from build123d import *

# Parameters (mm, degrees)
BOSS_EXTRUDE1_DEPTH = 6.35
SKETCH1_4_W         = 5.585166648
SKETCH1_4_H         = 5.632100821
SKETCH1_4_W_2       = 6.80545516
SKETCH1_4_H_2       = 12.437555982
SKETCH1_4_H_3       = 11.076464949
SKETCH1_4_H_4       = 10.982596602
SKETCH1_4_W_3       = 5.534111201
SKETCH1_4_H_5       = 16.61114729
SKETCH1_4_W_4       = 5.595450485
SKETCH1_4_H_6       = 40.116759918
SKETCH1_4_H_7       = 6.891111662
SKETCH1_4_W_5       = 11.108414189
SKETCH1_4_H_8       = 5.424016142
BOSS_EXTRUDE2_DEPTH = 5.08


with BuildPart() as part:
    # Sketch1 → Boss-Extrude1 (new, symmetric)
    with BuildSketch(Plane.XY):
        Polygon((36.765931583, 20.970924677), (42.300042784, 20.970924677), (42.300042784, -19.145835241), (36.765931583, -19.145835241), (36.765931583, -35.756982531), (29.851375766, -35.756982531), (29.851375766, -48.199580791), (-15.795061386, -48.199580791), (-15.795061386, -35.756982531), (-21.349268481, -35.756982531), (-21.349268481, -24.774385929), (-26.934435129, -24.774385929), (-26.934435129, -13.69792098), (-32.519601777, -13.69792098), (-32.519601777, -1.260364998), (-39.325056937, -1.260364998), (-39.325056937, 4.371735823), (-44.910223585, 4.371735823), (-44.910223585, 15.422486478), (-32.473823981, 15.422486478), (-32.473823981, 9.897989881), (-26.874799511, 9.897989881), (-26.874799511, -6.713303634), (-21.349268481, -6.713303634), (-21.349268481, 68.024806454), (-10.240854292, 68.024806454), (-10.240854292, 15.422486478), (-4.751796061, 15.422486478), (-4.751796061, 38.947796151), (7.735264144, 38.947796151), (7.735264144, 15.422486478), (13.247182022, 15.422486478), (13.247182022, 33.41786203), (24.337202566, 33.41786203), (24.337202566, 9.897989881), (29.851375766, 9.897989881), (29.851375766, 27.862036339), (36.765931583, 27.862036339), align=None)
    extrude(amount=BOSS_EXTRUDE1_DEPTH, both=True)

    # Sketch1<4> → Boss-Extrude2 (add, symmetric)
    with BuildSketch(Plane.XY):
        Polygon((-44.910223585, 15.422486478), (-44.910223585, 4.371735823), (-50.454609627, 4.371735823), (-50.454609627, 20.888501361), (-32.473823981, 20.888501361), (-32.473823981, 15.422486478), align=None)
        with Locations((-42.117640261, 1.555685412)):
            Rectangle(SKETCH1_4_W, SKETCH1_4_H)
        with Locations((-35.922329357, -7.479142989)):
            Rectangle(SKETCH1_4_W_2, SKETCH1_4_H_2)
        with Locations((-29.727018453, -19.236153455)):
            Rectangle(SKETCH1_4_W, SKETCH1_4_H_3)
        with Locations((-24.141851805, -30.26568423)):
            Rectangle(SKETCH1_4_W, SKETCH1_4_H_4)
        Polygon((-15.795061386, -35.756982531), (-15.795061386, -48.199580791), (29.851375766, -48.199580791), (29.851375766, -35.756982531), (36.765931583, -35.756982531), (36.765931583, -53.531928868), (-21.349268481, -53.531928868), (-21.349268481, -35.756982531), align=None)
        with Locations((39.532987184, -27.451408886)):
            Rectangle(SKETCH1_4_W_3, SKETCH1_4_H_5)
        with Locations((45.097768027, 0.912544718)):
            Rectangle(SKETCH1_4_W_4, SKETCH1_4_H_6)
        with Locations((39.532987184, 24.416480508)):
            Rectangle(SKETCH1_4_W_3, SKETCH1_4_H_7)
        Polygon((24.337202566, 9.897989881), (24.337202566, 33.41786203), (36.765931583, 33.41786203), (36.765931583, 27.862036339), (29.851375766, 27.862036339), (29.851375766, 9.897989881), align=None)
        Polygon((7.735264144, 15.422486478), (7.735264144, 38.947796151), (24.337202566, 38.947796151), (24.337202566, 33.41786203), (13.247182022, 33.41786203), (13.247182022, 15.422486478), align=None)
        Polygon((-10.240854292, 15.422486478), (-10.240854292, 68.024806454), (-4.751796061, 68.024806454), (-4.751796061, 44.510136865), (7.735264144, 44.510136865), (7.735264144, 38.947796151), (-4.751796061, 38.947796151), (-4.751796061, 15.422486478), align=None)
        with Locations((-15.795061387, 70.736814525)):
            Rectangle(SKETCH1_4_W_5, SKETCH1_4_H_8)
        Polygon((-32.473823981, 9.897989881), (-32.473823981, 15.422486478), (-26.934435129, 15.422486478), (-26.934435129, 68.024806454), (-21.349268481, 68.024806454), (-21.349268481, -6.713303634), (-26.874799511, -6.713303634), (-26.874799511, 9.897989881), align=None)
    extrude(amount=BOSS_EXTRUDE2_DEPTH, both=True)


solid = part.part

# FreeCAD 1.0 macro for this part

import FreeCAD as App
import Part
import Sketcher
from FreeCAD import Vector
Q = App.Units.Quantity


def add_polygon(sketch, points):
    """Adds a closed chain of lines whose ends are joined by coincident constraints."""
    first, n = sketch.GeometryCount, len(points)
    for a, b in zip(points, points[1:] + points[:1]):
        sketch.addGeometry(Part.LineSegment(App.Vector(*a, 0), App.Vector(*b, 0)), False)
    for i in range(n):
        sketch.addConstraint(Sketcher.Constraint("Coincident", first + i, 2, first + (i + 1) % n, 1))

doc = App.newDocument("Part")
params = doc.addObject("Spreadsheet::Sheet", "Params")
for row, (alias, value) in enumerate([
    ("pad1_length", "0.5 in"),
    ("sketch2_width", "2.288 in"),
    ("pad2_length", "0.4 in"),
], start=1):
    params.set(f"A{row}", alias)
    params.set(f"B{row}", "=" + value)
    params.setAlias(f"B{row}", alias)

body = doc.addObject("PartDesign::Body", "Body")

# Sketch on XY plane
sketch1 = body.newObject("Sketcher::SketchObject", "Sketch")
sketch1.AttachmentSupport = (doc.getObject("XY_Plane"), [""])
sketch1.MapMode = "FlatFace"
add_polygon(sketch1, [(42, 21), (37, 21), (37, 28), (30, 28), (30, 10), (24, 10), (24, 33), (13, 33), (13, 15), (8, 15), (8, 39), (-5, 39), (-5, 15), (-10, 15), (-10, 68), (-21, 68), (-21, -7), (-27, -7), (-27, 10), (-32, 10), (-32, 15), (-45, 15), (-45, 4), (-39, 4), (-39, -1), (-33, -1), (-33, -14), (-27, -14), (-27, -25), (-21, -25), (-21, -36), (-16, -36), (-16, -48), (30, -48), (30, -36), (37, -36), (37, -19), (42, -19)])  # lines 0-37
sketch1.addConstraint(Sketcher.Constraint("Horizontal", 0))
sketch1.addConstraint(Sketcher.Constraint("Vertical", 1))
sketch1.addConstraint(Sketcher.Constraint("Horizontal", 2))
sketch1.addConstraint(Sketcher.Constraint("Vertical", 3))
sketch1.addConstraint(Sketcher.Constraint("Horizontal", 4))
sketch1.addConstraint(Sketcher.Constraint("Vertical", 5))
sketch1.addConstraint(Sketcher.Constraint("Horizontal", 6))
sketch1.addConstraint(Sketcher.Constraint("Vertical", 7))
sketch1.addConstraint(Sketcher.Constraint("Horizontal", 8))
sketch1.addConstraint(Sketcher.Constraint("Vertical", 9))
sketch1.addConstraint(Sketcher.Constraint("Horizontal", 10))
sketch1.addConstraint(Sketcher.Constraint("Vertical", 11))
sketch1.addConstraint(Sketcher.Constraint("Horizontal", 12))
sketch1.addConstraint(Sketcher.Constraint("Vertical", 13))
sketch1.addConstraint(Sketcher.Constraint("Horizontal", 14))
sketch1.addConstraint(Sketcher.Constraint("Vertical", 15))
sketch1.addConstraint(Sketcher.Constraint("Horizontal", 16))
sketch1.addConstraint(Sketcher.Constraint("Vertical", 17))
sketch1.addConstraint(Sketcher.Constraint("Horizontal", 18))
sketch1.addConstraint(Sketcher.Constraint("Vertical", 19))
sketch1.addConstraint(Sketcher.Constraint("Horizontal", 20))
sketch1.addConstraint(Sketcher.Constraint("Vertical", 21))
sketch1.addConstraint(Sketcher.Constraint("Horizontal", 22))
sketch1.addConstraint(Sketcher.Constraint("Vertical", 23))
sketch1.addConstraint(Sketcher.Constraint("Horizontal", 24))
sketch1.addConstraint(Sketcher.Constraint("Vertical", 25))
sketch1.addConstraint(Sketcher.Constraint("Horizontal", 26))
sketch1.addConstraint(Sketcher.Constraint("Vertical", 27))
sketch1.addConstraint(Sketcher.Constraint("Horizontal", 28))
sketch1.addConstraint(Sketcher.Constraint("Vertical", 29))
sketch1.addConstraint(Sketcher.Constraint("Horizontal", 30))
sketch1.addConstraint(Sketcher.Constraint("Vertical", 31))
sketch1.addConstraint(Sketcher.Constraint("Horizontal", 32))
sketch1.addConstraint(Sketcher.Constraint("Vertical", 33))
sketch1.addConstraint(Sketcher.Constraint("Horizontal", 34))
sketch1.addConstraint(Sketcher.Constraint("Vertical", 35))
sketch1.addConstraint(Sketcher.Constraint("Horizontal", 36))
sketch1.addConstraint(Sketcher.Constraint("Vertical", 37))
sketch1.addConstraint(Sketcher.Constraint("Horizontal", 8, 2, 11, 2))
sketch1.addConstraint(Sketcher.Constraint("Horizontal", 4, 2, 17, 2))
sketch1.addConstraint(Sketcher.Constraint("Horizontal", 12, 2, 19, 2))
sketch1.addConstraint(Sketcher.Constraint("Horizontal", 30, 2, 33, 2))
sketch1.addConstraint(Sketcher.Constraint("Vertical", 15, 2, 28, 2))
sketch1.addConstraint(Sketcher.Constraint("Vertical", 3, 2, 32, 2))
sketch1.addConstraint(Sketcher.Constraint("Vertical", 1, 2, 34, 2))
sketch1.addConstraint(Sketcher.Constraint("Equal", 22, 26))
sketch1.addConstraint(Sketcher.Constraint("Equal", 26, 28))
sketch1.addConstraint(Sketcher.Constraint("DistanceY", 19, 1, 19, 2, Q("0.2174999 in")))
sketch1.addConstraint(Sketcher.Constraint("DistanceY", 37, 1, 37, 2, Q("1.5794 in")))
sketch1.addConstraint(Sketcher.Constraint("DistanceX", 20, 2, 20, 1, 12.4364))
sketch1.addConstraint(Sketcher.Constraint("DistanceY", 23, 2, 23, 1, 5.632101))
sketch1.addConstraint(Sketcher.Constraint("DistanceY", 31, 2, 31, 1, 12.442598))
sketch1.addConstraint(Sketcher.Constraint("DistanceX", 0, 2, 0, 1, 5.534111))
sketch1.addConstraint(Sketcher.Constraint("DistanceX", 6, 2, 6, 1, 11.090021))
sketch1.addConstraint(Sketcher.Constraint("DistanceX", 10, 2, 10, 1, 12.48706))
sketch1.addConstraint(Sketcher.Constraint("DistanceX", 12, 2, 12, 1, 5.489058))
sketch1.addConstraint(Sketcher.Constraint("DistanceX", 16, 2, 16, 1, 5.525531))
sketch1.addConstraint(Sketcher.Constraint("DistanceY", 1, 1, 1, 2, 6.891112))
sketch1.addConstraint(Sketcher.Constraint("DistanceY", 9, 1, 9, 2, 23.52531))
sketch1.addConstraint(Sketcher.Constraint("DistanceY", 13, 1, 13, 2, 52.60232))
sketch1.addConstraint(Sketcher.Constraint("DistanceY", 15, 2, 15, 1, 74.73811))
sketch1.addConstraint(Sketcher.Constraint("DistanceY", 21, 2, 21, 1, 11.050751))
sketch1.addConstraint(Sketcher.Constraint("DistanceX", 16, 2, -1, 1, 26.8748))
sketch1.addConstraint(Sketcher.Constraint("DistanceX", 24, 2, -1, 1, 32.519602))
sketch1.addConstraint(Sketcher.Constraint("DistanceX", 10, 2, 5, 2, 29.088999))
sketch1.addConstraint(Sketcher.Constraint("DistanceX", 2, 2, 2, 1, 6.914556))
sketch1.addConstraint(Sketcher.Constraint("DistanceX", 4, 2, 4, 1, 5.514173))
sketch1.addConstraint(Sketcher.Constraint("DistanceX", 14, 2, 14, 1, 11.108414))
sketch1.addConstraint(Sketcher.Constraint("DistanceX", 18, 2, 18, 1, 5.599024))
sketch1.addConstraint(Sketcher.Constraint("DistanceX", 30, 1, 30, 2, 5.554207))
sketch1.addConstraint(Sketcher.Constraint("DistanceY", 3, 2, 3, 1, 17.964046))
sketch1.addConstraint(Sketcher.Constraint("DistanceY", 5, 1, 5, 2, 23.519872))
sketch1.addConstraint(Sketcher.Constraint("DistanceY", 25, 2, 25, 1, 12.437556))
sketch1.addConstraint(Sketcher.Constraint("DistanceY", 27, 2, 27, 1, 11.076465))
sketch1.addConstraint(Sketcher.Constraint("DistanceY", 29, 2, 29, 1, 10.982597))
sketch1.addConstraint(Sketcher.Constraint("DistanceY", -1, 1, 3, 2, 9.89799))
pad1 = body.newObject("PartDesign::Pad", "Pad")
pad1.Profile = sketch1
pad1.setExpression("Length", "Params.pad1_length")
pad1.Midplane = True

# Sketch on XY plane
sketch2 = body.newObject("Sketcher::SketchObject", "Sketch001")
sketch2.AttachmentSupport = (doc.getObject("XY_Plane"), [""])
sketch2.MapMode = "FlatFace"
add_polygon(sketch2, [(-45, 4), (-45, 15), (-32, 15), (-32, 21), (-50, 21), (-50, 4)])  # lines 0-5
add_polygon(sketch2, [(-45, 4), (-45, -1), (-39, -1), (-39, 4)])  # lines 6-9
add_polygon(sketch2, [(-39, -1), (-39, -14), (-33, -14), (-33, -1)])  # lines 10-13
add_polygon(sketch2, [(-33, -14), (-33, -25), (-27, -25), (-27, -14)])  # lines 14-17
add_polygon(sketch2, [(-27, -25), (-27, -36), (-21, -36), (-21, -25)])  # lines 18-21
add_polygon(sketch2, [(-16, -48), (-16, -36), (-21, -36), (-21, -54), (37, -54), (37, -36), (30, -36), (30, -48)])  # lines 22-29
add_polygon(sketch2, [(37, -19), (37, -36), (42, -36), (42, -19)])  # lines 30-33
add_polygon(sketch2, [(42, 21), (42, -19), (48, -19), (48, 21)])  # lines 34-37
add_polygon(sketch2, [(37, 28), (37, 21), (42, 21), (42, 28)])  # lines 38-41
add_polygon(sketch2, [(24, 33), (24, 10), (30, 10), (30, 28), (37, 28), (37, 33)])  # lines 42-47
add_polygon(sketch2, [(8, 39), (8, 15), (13, 15), (13, 33), (24, 33), (24, 39)])  # lines 48-53
add_polygon(sketch2, [(-10, 68), (-10, 15), (-5, 15), (-5, 39), (8, 39), (8, 45), (-5, 45), (-5, 68)])  # lines 54-61
add_polygon(sketch2, [(-21, 73), (-21, 68), (-10, 68), (-10, 73)])  # lines 62-65
add_polygon(sketch2, [(-32, 15), (-32, 10), (-27, 10), (-27, -7), (-21, -7), (-21, 68), (-27, 68), (-27, 15)])  # lines 66-73
sketch2.addConstraint(Sketcher.Constraint("Vertical", 0))
sketch2.addConstraint(Sketcher.Constraint("Horizontal", 1))
sketch2.addConstraint(Sketcher.Constraint("Vertical", 2))
sketch2.addConstraint(Sketcher.Constraint("Horizontal", 3))
sketch2.addConstraint(Sketcher.Constraint("Vertical", 4))
sketch2.addConstraint(Sketcher.Constraint("Horizontal", 5))
sketch2.addConstraint(Sketcher.Constraint("Vertical", 6))
sketch2.addConstraint(Sketcher.Constraint("Horizontal", 7))
sketch2.addConstraint(Sketcher.Constraint("Vertical", 8))
sketch2.addConstraint(Sketcher.Constraint("Horizontal", 9))
sketch2.addConstraint(Sketcher.Constraint("Vertical", 10))
sketch2.addConstraint(Sketcher.Constraint("Horizontal", 11))
sketch2.addConstraint(Sketcher.Constraint("Vertical", 12))
sketch2.addConstraint(Sketcher.Constraint("Horizontal", 13))
sketch2.addConstraint(Sketcher.Constraint("Vertical", 14))
sketch2.addConstraint(Sketcher.Constraint("Horizontal", 15))
sketch2.addConstraint(Sketcher.Constraint("Vertical", 16))
sketch2.addConstraint(Sketcher.Constraint("Horizontal", 17))
sketch2.addConstraint(Sketcher.Constraint("Vertical", 18))
sketch2.addConstraint(Sketcher.Constraint("Horizontal", 19))
sketch2.addConstraint(Sketcher.Constraint("Vertical", 20))
sketch2.addConstraint(Sketcher.Constraint("Horizontal", 21))
sketch2.addConstraint(Sketcher.Constraint("Vertical", 22))
sketch2.addConstraint(Sketcher.Constraint("Horizontal", 23))
sketch2.addConstraint(Sketcher.Constraint("Vertical", 24))
sketch2.addConstraint(Sketcher.Constraint("Horizontal", 25))
sketch2.addConstraint(Sketcher.Constraint("Vertical", 26))
sketch2.addConstraint(Sketcher.Constraint("Horizontal", 27))
sketch2.addConstraint(Sketcher.Constraint("Vertical", 28))
sketch2.addConstraint(Sketcher.Constraint("Horizontal", 29))
sketch2.addConstraint(Sketcher.Constraint("Vertical", 30))
sketch2.addConstraint(Sketcher.Constraint("Horizontal", 31))
sketch2.addConstraint(Sketcher.Constraint("Vertical", 32))
sketch2.addConstraint(Sketcher.Constraint("Horizontal", 33))
sketch2.addConstraint(Sketcher.Constraint("Vertical", 34))
sketch2.addConstraint(Sketcher.Constraint("Horizontal", 35))
sketch2.addConstraint(Sketcher.Constraint("Vertical", 36))
sketch2.addConstraint(Sketcher.Constraint("Horizontal", 37))
sketch2.addConstraint(Sketcher.Constraint("Vertical", 38))
sketch2.addConstraint(Sketcher.Constraint("Horizontal", 39))
sketch2.addConstraint(Sketcher.Constraint("Vertical", 40))
sketch2.addConstraint(Sketcher.Constraint("Horizontal", 41))
sketch2.addConstraint(Sketcher.Constraint("Vertical", 42))
sketch2.addConstraint(Sketcher.Constraint("Horizontal", 43))
sketch2.addConstraint(Sketcher.Constraint("Vertical", 44))
sketch2.addConstraint(Sketcher.Constraint("Horizontal", 45))
sketch2.addConstraint(Sketcher.Constraint("Vertical", 46))
sketch2.addConstraint(Sketcher.Constraint("Horizontal", 47))
sketch2.addConstraint(Sketcher.Constraint("Vertical", 48))
sketch2.addConstraint(Sketcher.Constraint("Horizontal", 49))
sketch2.addConstraint(Sketcher.Constraint("Vertical", 50))
sketch2.addConstraint(Sketcher.Constraint("Horizontal", 51))
sketch2.addConstraint(Sketcher.Constraint("Vertical", 52))
sketch2.addConstraint(Sketcher.Constraint("Horizontal", 53))
sketch2.addConstraint(Sketcher.Constraint("Vertical", 54))
sketch2.addConstraint(Sketcher.Constraint("Horizontal", 55))
sketch2.addConstraint(Sketcher.Constraint("Vertical", 56))
sketch2.addConstraint(Sketcher.Constraint("Horizontal", 57))
sketch2.addConstraint(Sketcher.Constraint("Vertical", 58))
sketch2.addConstraint(Sketcher.Constraint("Horizontal", 59))
sketch2.addConstraint(Sketcher.Constraint("Vertical", 60))
sketch2.addConstraint(Sketcher.Constraint("Horizontal", 61))
sketch2.addConstraint(Sketcher.Constraint("Vertical", 62))
sketch2.addConstraint(Sketcher.Constraint("Horizontal", 63))
sketch2.addConstraint(Sketcher.Constraint("Vertical", 64))
sketch2.addConstraint(Sketcher.Constraint("Horizontal", 65))
sketch2.addConstraint(Sketcher.Constraint("Vertical", 66))
sketch2.addConstraint(Sketcher.Constraint("Horizontal", 67))
sketch2.addConstraint(Sketcher.Constraint("Vertical", 68))
sketch2.addConstraint(Sketcher.Constraint("Horizontal", 69))
sketch2.addConstraint(Sketcher.Constraint("Vertical", 70))
sketch2.addConstraint(Sketcher.Constraint("Horizontal", 71))
sketch2.addConstraint(Sketcher.Constraint("Vertical", 72))
sketch2.addConstraint(Sketcher.Constraint("Horizontal", 73))
sketch2.addConstraint(Sketcher.Constraint("Coincident", 9, 2, 5, 2))
sketch2.addConstraint(Sketcher.Constraint("Coincident", 13, 2, 7, 2))
sketch2.addConstraint(Sketcher.Constraint("Coincident", 17, 2, 11, 2))
sketch2.addConstraint(Sketcher.Constraint("Coincident", 21, 2, 15, 2))
sketch2.addConstraint(Sketcher.Constraint("Coincident", 23, 2, 19, 2))
sketch2.addConstraint(Sketcher.Constraint("Coincident", 30, 2, 26, 2))
sketch2.addConstraint(Sketcher.Constraint("Coincident", 34, 2, 32, 2))
sketch2.addConstraint(Sketcher.Constraint("Coincident", 39, 2, 37, 2))
sketch2.addConstraint(Sketcher.Constraint("Coincident", 45, 2, 41, 2))
sketch2.addConstraint(Sketcher.Constraint("Coincident", 51, 2, 47, 2))
sketch2.addConstraint(Sketcher.Constraint("Coincident", 57, 2, 53, 2))
sketch2.addConstraint(Sketcher.Constraint("Coincident", 63, 2, 61, 2))
sketch2.addConstraint(Sketcher.Constraint("Coincident", 70, 2, 62, 2))
sketch2.addConstraint(Sketcher.Constraint("Coincident", 73, 2, 1, 2))
sketch2.addConstraint(Sketcher.Constraint("Horizontal", 23, 2, 26, 2))
sketch2.addConstraint(Sketcher.Constraint("Horizontal", 1, 2, 48, 2))
sketch2.addConstraint(Sketcher.Constraint("Horizontal", 49, 2, 54, 2))
sketch2.addConstraint(Sketcher.Constraint("Horizontal", 43, 2, 66, 2))
sketch2.addConstraint(Sketcher.Constraint("Vertical", 33, 2, 38, 2))
sketch2.addConstraint(Sketcher.Constraint("Vertical", 28, 2, 43, 2))
sketch2.addConstraint(Sketcher.Constraint("Vertical", 56, 2, 59, 2))
sketch2.addConstraint(Sketcher.Constraint("Vertical", 24, 2, 62, 2))
sketch2.addConstraint(Sketcher.Constraint("Vertical", 21, 2, 71, 2))
sketch2.addConstraint(Sketcher.Constraint("Equal", 9, 15))
sketch2.addConstraint(Sketcher.Constraint("Equal", 17, 19))
sketch2.addConstraint(Sketcher.Constraint("DistanceX", 25, 1, 25, 2, Q("2.288 in")))
sketch2.addConstraint(Sketcher.Constraint("DistanceY", 34, 2, 34, 1, Q("1.5794 in")))
sketch2.addConstraint(Sketcher.Constraint("DistanceY", 66, 2, 66, 1, Q("0.2174999 in")))
sketch2.addConstraint(Sketcher.Constraint("DistanceX", 1, 1, 1, 2, 12.4364))
sketch2.addConstraint(Sketcher.Constraint("DistanceY", 6, 2, 6, 1, 5.632101))
sketch2.addConstraint(Sketcher.Constraint("DistanceY", 22, 1, 22, 2, 12.442598))
sketch2.addConstraint(Sketcher.Constraint("DistanceX", 31, 1, 31, 2, 5.534111))
sketch2.addConstraint(Sketcher.Constraint("DistanceX", 35, 1, 35, 2, 5.59545))
sketch2.addConstraint(Sketcher.Constraint("DistanceX", 47, 2, 47, 1, 12.428729))
sketch2.addConstraint(Sketcher.Constraint("DistanceX", 51, 1, 51, 2, 11.090021))
sketch2.addConstraint(Sketcher.Constraint("DistanceX", 53, 2, 53, 1, 16.601938))
sketch2.addConstraint(Sketcher.Constraint("DistanceX", 55, 1, 55, 2, 5.489058))
sketch2.addConstraint(Sketcher.Constraint("DistanceX", 57, 1, 57, 2, 12.48706))
sketch2.addConstraint(Sketcher.Constraint("DistanceX", 69, 1, 69, 2, 5.525531))
sketch2.addConstraint(Sketcher.Constraint("DistanceX", 73, 2, 73, 1, 5.539389))
sketch2.addConstraint(Sketcher.Constraint("DistanceY", 0, 1, 0, 2, 11.050751))
sketch2.addConstraint(Sketcher.Constraint("DistanceY", 38, 2, 38, 1, 6.891112))
sketch2.addConstraint(Sketcher.Constraint("DistanceY", 48, 2, 48, 1, 23.52531))
sketch2.addConstraint(Sketcher.Constraint("DistanceY", 54, 2, 54, 1, 52.60232))
sketch2.addConstraint(Sketcher.Constraint("DistanceY", 58, 1, 58, 2, 5.562341))
sketch2.addConstraint(Sketcher.Constraint("DistanceY", 70, 1, 70, 2, 74.73811))
sketch2.addConstraint(Sketcher.Constraint("DistanceY", -1, 1, 2, 2, 20.888501))
sketch2.addConstraint(Sketcher.Constraint("DistanceX", 11, 2, -1, 1, 32.519602))
sketch2.addConstraint(Sketcher.Constraint("DistanceX", 67, 2, -1, 1, 26.8748))
sketch2.addConstraint(Sketcher.Constraint("DistanceX", 3, 2, 3, 1, 17.980786))
sketch2.addConstraint(Sketcher.Constraint("DistanceX", 23, 2, 23, 1, 5.554207))
sketch2.addConstraint(Sketcher.Constraint("DistanceX", 27, 2, 27, 1, 6.914556))
sketch2.addConstraint(Sketcher.Constraint("DistanceY", 2, 1, 2, 2, 5.466015))
sketch2.addConstraint(Sketcher.Constraint("DistanceY", 10, 2, 10, 1, 12.437556))
sketch2.addConstraint(Sketcher.Constraint("DistanceY", 14, 2, 14, 1, 11.076465))
sketch2.addConstraint(Sketcher.Constraint("DistanceY", 18, 2, 18, 1, 10.982597))
sketch2.addConstraint(Sketcher.Constraint("DistanceY", 24, 2, 24, 1, 17.774946))
sketch2.addConstraint(Sketcher.Constraint("DistanceY", 30, 2, 30, 1, 16.611147))
sketch2.addConstraint(Sketcher.Constraint("DistanceY", 42, 2, 42, 1, 23.519872))
sketch2.addConstraint(Sketcher.Constraint("DistanceY", 62, 2, 62, 1, 5.424016))
sketch2.setExpression("Constraints[173]", "Params.sketch2_width")
pad2 = body.newObject("PartDesign::Pad", "Pad001")
pad2.Profile = sketch2
pad2.setExpression("Length", "Params.pad2_length")
pad2.Midplane = True

doc.recompute()
